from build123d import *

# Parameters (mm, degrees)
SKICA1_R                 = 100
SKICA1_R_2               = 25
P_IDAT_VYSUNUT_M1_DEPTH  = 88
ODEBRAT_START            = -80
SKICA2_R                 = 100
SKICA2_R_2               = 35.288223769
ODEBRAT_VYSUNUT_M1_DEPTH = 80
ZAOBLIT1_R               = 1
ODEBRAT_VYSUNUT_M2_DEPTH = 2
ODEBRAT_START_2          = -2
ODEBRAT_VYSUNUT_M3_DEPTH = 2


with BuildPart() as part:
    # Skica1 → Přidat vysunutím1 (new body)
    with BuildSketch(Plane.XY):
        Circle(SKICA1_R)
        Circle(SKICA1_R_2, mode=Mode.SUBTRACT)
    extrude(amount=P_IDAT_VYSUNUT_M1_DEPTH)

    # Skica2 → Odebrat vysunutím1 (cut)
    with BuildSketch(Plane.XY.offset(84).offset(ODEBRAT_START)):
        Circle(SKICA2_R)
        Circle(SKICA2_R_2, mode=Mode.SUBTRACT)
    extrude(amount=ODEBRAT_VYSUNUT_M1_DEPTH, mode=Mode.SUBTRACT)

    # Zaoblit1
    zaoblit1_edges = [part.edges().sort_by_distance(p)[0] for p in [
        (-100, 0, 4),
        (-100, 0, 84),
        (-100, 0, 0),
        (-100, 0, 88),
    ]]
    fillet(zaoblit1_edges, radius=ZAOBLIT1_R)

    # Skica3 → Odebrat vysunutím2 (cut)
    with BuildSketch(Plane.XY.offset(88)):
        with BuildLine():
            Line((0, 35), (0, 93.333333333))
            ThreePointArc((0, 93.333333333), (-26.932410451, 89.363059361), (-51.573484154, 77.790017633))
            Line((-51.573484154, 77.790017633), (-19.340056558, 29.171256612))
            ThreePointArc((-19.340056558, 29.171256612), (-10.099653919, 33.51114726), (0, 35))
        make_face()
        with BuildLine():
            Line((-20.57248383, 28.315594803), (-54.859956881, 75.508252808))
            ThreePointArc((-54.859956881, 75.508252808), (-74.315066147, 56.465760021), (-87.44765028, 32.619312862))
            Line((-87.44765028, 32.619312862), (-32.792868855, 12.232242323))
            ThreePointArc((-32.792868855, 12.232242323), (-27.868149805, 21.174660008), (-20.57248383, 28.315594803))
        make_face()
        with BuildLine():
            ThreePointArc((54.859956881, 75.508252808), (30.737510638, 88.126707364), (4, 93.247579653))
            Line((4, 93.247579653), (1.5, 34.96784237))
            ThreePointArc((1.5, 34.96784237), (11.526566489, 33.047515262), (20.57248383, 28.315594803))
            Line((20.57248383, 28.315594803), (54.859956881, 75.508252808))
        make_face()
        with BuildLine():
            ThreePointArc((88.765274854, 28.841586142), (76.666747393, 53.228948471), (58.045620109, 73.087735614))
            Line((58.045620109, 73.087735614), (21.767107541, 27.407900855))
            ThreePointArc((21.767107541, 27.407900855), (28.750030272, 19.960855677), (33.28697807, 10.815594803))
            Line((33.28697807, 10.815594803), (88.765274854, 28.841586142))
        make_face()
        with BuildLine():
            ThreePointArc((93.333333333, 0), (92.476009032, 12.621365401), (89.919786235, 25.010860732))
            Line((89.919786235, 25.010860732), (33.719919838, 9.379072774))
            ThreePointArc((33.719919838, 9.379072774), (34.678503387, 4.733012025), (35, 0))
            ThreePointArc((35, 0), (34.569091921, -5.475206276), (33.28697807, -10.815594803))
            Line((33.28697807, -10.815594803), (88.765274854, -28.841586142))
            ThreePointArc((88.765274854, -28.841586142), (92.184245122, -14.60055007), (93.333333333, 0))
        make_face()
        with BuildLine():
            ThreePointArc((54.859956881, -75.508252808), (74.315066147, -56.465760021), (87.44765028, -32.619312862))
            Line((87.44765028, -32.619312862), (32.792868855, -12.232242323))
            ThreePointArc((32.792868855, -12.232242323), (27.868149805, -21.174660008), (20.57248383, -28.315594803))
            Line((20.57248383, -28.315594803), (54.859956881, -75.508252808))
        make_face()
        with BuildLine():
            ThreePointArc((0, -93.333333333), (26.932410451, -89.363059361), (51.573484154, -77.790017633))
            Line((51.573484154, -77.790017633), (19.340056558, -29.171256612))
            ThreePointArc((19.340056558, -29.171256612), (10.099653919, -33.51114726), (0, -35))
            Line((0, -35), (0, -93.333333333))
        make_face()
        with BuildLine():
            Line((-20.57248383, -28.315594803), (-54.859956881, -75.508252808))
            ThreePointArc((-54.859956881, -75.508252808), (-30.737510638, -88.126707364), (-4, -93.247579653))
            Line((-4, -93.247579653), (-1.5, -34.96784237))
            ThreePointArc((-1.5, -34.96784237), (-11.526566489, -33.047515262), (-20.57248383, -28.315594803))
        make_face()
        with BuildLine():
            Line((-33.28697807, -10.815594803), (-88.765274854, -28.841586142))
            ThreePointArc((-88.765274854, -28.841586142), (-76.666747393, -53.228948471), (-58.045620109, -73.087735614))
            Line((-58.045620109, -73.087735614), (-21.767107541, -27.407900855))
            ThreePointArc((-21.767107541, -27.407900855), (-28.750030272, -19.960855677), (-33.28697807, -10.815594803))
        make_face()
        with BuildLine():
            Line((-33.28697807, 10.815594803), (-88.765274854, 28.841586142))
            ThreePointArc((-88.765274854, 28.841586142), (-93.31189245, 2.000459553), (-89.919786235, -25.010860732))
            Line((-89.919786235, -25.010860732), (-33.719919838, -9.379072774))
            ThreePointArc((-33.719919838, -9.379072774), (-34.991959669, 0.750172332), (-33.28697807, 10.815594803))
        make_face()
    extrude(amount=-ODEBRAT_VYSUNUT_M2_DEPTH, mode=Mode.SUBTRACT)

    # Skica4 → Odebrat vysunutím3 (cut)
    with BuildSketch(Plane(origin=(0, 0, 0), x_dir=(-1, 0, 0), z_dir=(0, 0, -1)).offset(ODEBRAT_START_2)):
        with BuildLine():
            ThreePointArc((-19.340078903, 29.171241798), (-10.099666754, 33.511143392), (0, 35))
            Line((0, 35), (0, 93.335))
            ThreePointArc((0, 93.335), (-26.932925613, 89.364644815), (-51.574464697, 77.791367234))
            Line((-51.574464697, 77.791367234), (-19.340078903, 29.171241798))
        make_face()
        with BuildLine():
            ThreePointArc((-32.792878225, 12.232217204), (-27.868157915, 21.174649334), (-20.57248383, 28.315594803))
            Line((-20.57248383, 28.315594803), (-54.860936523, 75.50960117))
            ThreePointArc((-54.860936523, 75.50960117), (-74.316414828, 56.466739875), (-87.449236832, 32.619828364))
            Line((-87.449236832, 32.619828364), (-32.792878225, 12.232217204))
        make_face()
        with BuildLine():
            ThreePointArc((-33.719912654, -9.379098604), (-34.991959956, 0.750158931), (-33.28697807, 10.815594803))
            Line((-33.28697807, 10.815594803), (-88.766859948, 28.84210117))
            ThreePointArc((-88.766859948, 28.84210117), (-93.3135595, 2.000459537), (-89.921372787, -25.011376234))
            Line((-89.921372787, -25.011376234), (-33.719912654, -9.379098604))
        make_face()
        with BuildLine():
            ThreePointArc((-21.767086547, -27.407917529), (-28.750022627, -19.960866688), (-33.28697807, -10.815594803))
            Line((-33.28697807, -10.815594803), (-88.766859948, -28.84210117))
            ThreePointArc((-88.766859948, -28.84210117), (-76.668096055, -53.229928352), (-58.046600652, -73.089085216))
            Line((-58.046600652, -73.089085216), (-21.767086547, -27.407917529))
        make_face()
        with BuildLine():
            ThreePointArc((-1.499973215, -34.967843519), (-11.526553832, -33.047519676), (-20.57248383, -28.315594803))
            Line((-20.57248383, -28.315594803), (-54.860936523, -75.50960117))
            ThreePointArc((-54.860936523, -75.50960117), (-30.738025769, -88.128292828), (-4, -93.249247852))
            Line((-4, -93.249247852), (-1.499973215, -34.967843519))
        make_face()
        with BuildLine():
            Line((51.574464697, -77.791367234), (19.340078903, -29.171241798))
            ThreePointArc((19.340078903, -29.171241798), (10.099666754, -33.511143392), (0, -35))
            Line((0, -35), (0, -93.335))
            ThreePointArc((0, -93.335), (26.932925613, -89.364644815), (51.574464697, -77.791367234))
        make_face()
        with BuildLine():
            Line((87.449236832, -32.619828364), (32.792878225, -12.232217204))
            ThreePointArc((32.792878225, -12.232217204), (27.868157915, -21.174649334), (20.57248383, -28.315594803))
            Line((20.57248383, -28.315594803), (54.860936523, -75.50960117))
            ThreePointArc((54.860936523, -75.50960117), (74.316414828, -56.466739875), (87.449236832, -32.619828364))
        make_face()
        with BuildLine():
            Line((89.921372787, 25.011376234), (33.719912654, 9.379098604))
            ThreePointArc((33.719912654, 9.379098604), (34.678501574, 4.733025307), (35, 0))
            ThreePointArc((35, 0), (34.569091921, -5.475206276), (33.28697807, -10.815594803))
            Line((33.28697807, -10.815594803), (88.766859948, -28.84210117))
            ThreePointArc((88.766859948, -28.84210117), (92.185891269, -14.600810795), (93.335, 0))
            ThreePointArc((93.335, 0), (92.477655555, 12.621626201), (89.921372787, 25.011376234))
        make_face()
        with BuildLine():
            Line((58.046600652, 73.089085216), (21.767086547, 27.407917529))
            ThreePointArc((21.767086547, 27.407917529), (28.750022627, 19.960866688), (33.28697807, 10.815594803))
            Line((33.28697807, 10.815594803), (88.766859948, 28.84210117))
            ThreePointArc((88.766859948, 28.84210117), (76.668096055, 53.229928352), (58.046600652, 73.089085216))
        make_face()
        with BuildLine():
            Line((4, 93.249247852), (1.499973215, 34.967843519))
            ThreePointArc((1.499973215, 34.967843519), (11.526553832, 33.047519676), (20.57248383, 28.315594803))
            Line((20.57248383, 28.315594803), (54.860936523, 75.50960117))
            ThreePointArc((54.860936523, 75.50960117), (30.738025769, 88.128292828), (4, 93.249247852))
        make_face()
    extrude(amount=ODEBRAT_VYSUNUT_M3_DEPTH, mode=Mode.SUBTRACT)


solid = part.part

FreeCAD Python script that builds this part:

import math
import FreeCAD as App
import Part
import Sketcher
from FreeCAD import Vector
Q = App.Units.Quantity


def edges_at(feature, points):
    """Names of the edges that pass closest to the given points."""
    edges = feature.Shape.Edges
    near = lambda p: min(range(len(edges)), key=lambda i: edges[i].distToShape(Part.Vertex(*p))[0])
    return sorted({f"Edge{near(p) + 1}" for p in points})

doc = App.newDocument("Part")
body = doc.addObject("PartDesign::Body", "Body")

sketch1 = body.newObject("Sketcher::SketchObject", "Sketch")
sketch1.AttachmentSupport = (doc.getObject("XY_Plane"), [""])
sketch1.MapMode = "FlatFace"
sketch1.addGeometry(Part.Circle(Vector(0, 0, 0), Vector(0, 0, 1), 100), False)
sketch1.addGeometry(Part.Circle(Vector(0, 0, 0), Vector(0, 0, 1), 25), False)
sketch1.addConstraint(Sketcher.Constraint("Coincident", 0, 3, -1, 1))
sketch1.addConstraint(Sketcher.Constraint("Coincident", 1, 3, -1, 1))
sketch1.addConstraint(Sketcher.Constraint("Diameter", 0, Q("200 mm")))
sketch1.addConstraint(Sketcher.Constraint("Diameter", 1, Q("50 mm")))
pad1 = body.newObject("PartDesign::Pad", "Pad")
pad1.Profile = sketch1
pad1.Length = 88

sketch2 = body.newObject("Sketcher::SketchObject", "Sketch001")
sketch2.AttachmentSupport = (doc.getObject("XY_Plane"), [""])
sketch2.MapMode = "FlatFace"
sketch2.AttachmentOffset = App.Placement(Vector(0, 0, 4), App.Rotation())
sketch2.addGeometry(Part.Circle(Vector(0, 0, 0), Vector(0, 0, 1), 100), False)
sketch2.addGeometry(Part.Circle(Vector(0, 0, 0), Vector(0, 0, 1), 35), False)
sketch2.addConstraint(Sketcher.Constraint("Coincident", 0, 3, -1, 1))
sketch2.addConstraint(Sketcher.Constraint("Coincident", 1, 3, -1, 1))
sketch2.addConstraint(Sketcher.Constraint("Diameter", 0, Q("200 mm")))
sketch2.addConstraint(Sketcher.Constraint("Diameter", 1, Q("70.576448 mm")))
pocket1 = body.newObject("PartDesign::Pocket", "Pocket")
pocket1.Profile = sketch2
pocket1.Length = 80
pocket1.Reversed = True
doc.recompute()

fillet = body.newObject("PartDesign::Fillet", "Fillet")
fillet.Base = (pocket1, edges_at(pocket1, [
    (-100, 0, 4),
    (-100, 0, 84),
    (-100, 0, 0),
    (-100, 0, 88),
]))
fillet.Radius = 1

sketch3 = body.newObject("Sketcher::SketchObject", "Sketch002")
sketch3.AttachmentSupport = (doc.getObject("XY_Plane"), [""])
sketch3.MapMode = "FlatFace"
sketch3.AttachmentOffset = App.Placement(Vector(0, 0, 88), App.Rotation())
sketch3.addGeometry(Part.LineSegment(Vector(0, 35, 0), Vector(0, 93, 0)), False)
sketch3.addGeometry(Part.ArcOfCircle(Part.Circle(Vector(0, 0, 0), Vector(0, 0, 1), 93), math.radians(90), math.radians(124)), False)
sketch3.addGeometry(Part.LineSegment(Vector(-52, 78, 0), Vector(-19, 29, 0)), False)
sketch3.addGeometry(Part.ArcOfCircle(Part.Circle(Vector(0, 0, 0), Vector(0, 0, 1), 35), math.radians(90), math.radians(124)), False)
sketch3.addGeometry(Part.LineSegment(Vector(-21, 28, 0), Vector(-55, 76, 0)), False)
sketch3.addGeometry(Part.ArcOfCircle(Part.Circle(Vector(0, 0, 0), Vector(0, 0, 1), 93), math.radians(126), math.radians(160)), False)
sketch3.addGeometry(Part.LineSegment(Vector(-87, 33, 0), Vector(-33, 12, 0)), False)
sketch3.addGeometry(Part.ArcOfCircle(Part.Circle(Vector(0, 0, 0), Vector(0, 0, 1), 35), math.radians(126), math.radians(160)), False)
sketch3.addGeometry(Part.ArcOfCircle(Part.Circle(Vector(0, 0, 0), Vector(0, 0, 1), 93), math.radians(54), math.radians(88)), False)
sketch3.addGeometry(Part.LineSegment(Vector(4, 93, 0), Vector(2, 35, 0)), False)
sketch3.addGeometry(Part.ArcOfCircle(Part.Circle(Vector(0, 0, 0), Vector(0, 0, 1), 35), math.radians(54), math.radians(88)), False)
sketch3.addGeometry(Part.LineSegment(Vector(21, 28, 0), Vector(55, 76, 0)), False)
sketch3.addGeometry(Part.ArcOfCircle(Part.Circle(Vector(0, 0, 0), Vector(0, 0, 1), 93), math.radians(18), math.radians(52)), False)
sketch3.addGeometry(Part.LineSegment(Vector(58, 73, 0), Vector(22, 27, 0)), False)
sketch3.addGeometry(Part.ArcOfCircle(Part.Circle(Vector(0, 0, 0), Vector(0, 0, 1), 35), math.radians(18), math.radians(52)), False)
sketch3.addGeometry(Part.LineSegment(Vector(33, 11, 0), Vector(89, 29, 0)), False)
sketch3.addGeometry(Part.ArcOfCircle(Part.Circle(Vector(0, 0, 0), Vector(0, 0, 1), 93), math.radians(0), math.radians(15.54)), False)
sketch3.addGeometry(Part.LineSegment(Vector(90, 25, 0), Vector(34, 9, 0)), False)
sketch3.addGeometry(Part.ArcOfCircle(Part.Circle(Vector(0, 0, 0), Vector(0, 0, 1), 35), math.radians(0), math.radians(15.54)), False)
sketch3.addGeometry(Part.ArcOfCircle(Part.Circle(Vector(0, 0, 0), Vector(0, 0, 1), 35), math.radians(-18), math.radians(0)), False)
sketch3.addGeometry(Part.LineSegment(Vector(33, -11, 0), Vector(89, -29, 0)), False)
sketch3.addGeometry(Part.ArcOfCircle(Part.Circle(Vector(0, 0, 0), Vector(0, 0, 1), 93), math.radians(-18), math.radians(0)), False)
sketch3.addGeometry(Part.ArcOfCircle(Part.Circle(Vector(0, 0, 0), Vector(0, 0, 1), 93), math.radians(-54), math.radians(-20)), False)
sketch3.addGeometry(Part.LineSegment(Vector(87, -33, 0), Vector(33, -12, 0)), False)
sketch3.addGeometry(Part.ArcOfCircle(Part.Circle(Vector(0, 0, 0), Vector(0, 0, 1), 35), math.radians(-54), math.radians(-20)), False)
sketch3.addGeometry(Part.LineSegment(Vector(21, -28, 0), Vector(55, -76, 0)), False)
sketch3.addGeometry(Part.ArcOfCircle(Part.Circle(Vector(0, 0, 0), Vector(0, 0, 1), 93), math.radians(-90), math.radians(-56)), False)
sketch3.addGeometry(Part.LineSegment(Vector(52, -78, 0), Vector(19, -29, 0)), False)
sketch3.addGeometry(Part.ArcOfCircle(Part.Circle(Vector(0, 0, 0), Vector(0, 0, 1), 35), math.radians(-90), math.radians(-56)), False)
sketch3.addGeometry(Part.LineSegment(Vector(0, -35, 0), Vector(0, -93, 0)), False)
sketch3.addGeometry(Part.LineSegment(Vector(-21, -28, 0), Vector(-55, -76, 0)), False)
sketch3.addGeometry(Part.ArcOfCircle(Part.Circle(Vector(0, 0, 0), Vector(0, 0, 1), 93), math.radians(-126), math.radians(-92)), False)
sketch3.addGeometry(Part.LineSegment(Vector(-4, -93, 0), Vector(-2, -35, 0)), False)
sketch3.addGeometry(Part.ArcOfCircle(Part.Circle(Vector(0, 0, 0), Vector(0, 0, 1), 35), math.radians(-126), math.radians(-92)), False)
sketch3.addGeometry(Part.LineSegment(Vector(-33, -11, 0), Vector(-89, -29, 0)), False)
sketch3.addGeometry(Part.ArcOfCircle(Part.Circle(Vector(0, 0, 0), Vector(0, 0, 1), 93), math.radians(-162), math.radians(-128)), False)
sketch3.addGeometry(Part.LineSegment(Vector(-58, -73, 0), Vector(-22, -27, 0)), False)
sketch3.addGeometry(Part.ArcOfCircle(Part.Circle(Vector(0, 0, 0), Vector(0, 0, 1), 35), math.radians(-162), math.radians(-128)), False)
sketch3.addGeometry(Part.LineSegment(Vector(-33, 11, 0), Vector(-89, 29, 0)), False)
sketch3.addGeometry(Part.ArcOfCircle(Part.Circle(Vector(0, 0, 0), Vector(0, 0, 1), 93), math.radians(162), math.radians(196)), False)
sketch3.addGeometry(Part.LineSegment(Vector(-90, -25, 0), Vector(-34, -9, 0)), False)
sketch3.addGeometry(Part.ArcOfCircle(Part.Circle(Vector(0, 0, 0), Vector(0, 0, 1), 35), math.radians(162), math.radians(196)), False)
sketch3.addConstraint(Sketcher.Constraint("Coincident", 0, 2, 1, 1))
sketch3.addConstraint(Sketcher.Constraint("Coincident", 1, 2, 2, 1))
sketch3.addConstraint(Sketcher.Constraint("Coincident", 2, 2, 3, 2))
sketch3.addConstraint(Sketcher.Constraint("Coincident", 3, 1, 0, 1))
sketch3.addConstraint(Sketcher.Constraint("Coincident", 4, 2, 5, 1))
sketch3.addConstraint(Sketcher.Constraint("Coincident", 5, 2, 6, 1))
sketch3.addConstraint(Sketcher.Constraint("Coincident", 6, 2, 7, 2))
sketch3.addConstraint(Sketcher.Constraint("Coincident", 7, 1, 4, 1))
sketch3.addConstraint(Sketcher.Constraint("Coincident", 8, 2, 9, 1))
sketch3.addConstraint(Sketcher.Constraint("Coincident", 9, 2, 10, 2))
sketch3.addConstraint(Sketcher.Constraint("Coincident", 10, 1, 11, 1))
sketch3.addConstraint(Sketcher.Constraint("Coincident", 11, 2, 8, 1))
sketch3.addConstraint(Sketcher.Constraint("Coincident", 12, 2, 13, 1))
sketch3.addConstraint(Sketcher.Constraint("Coincident", 13, 2, 14, 2))
sketch3.addConstraint(Sketcher.Constraint("Coincident", 14, 1, 15, 1))
sketch3.addConstraint(Sketcher.Constraint("Coincident", 15, 2, 12, 1))
sketch3.addConstraint(Sketcher.Constraint("Coincident", 16, 2, 17, 1))
sketch3.addConstraint(Sketcher.Constraint("Coincident", 17, 2, 18, 2))
sketch3.addConstraint(Sketcher.Constraint("Tangent", 18, 1, 19, 2))
sketch3.addConstraint(Sketcher.Constraint("Coincident", 19, 1, 20, 1))
sketch3.addConstraint(Sketcher.Constraint("Coincident", 20, 2, 21, 1))
sketch3.addConstraint(Sketcher.Constraint("Tangent", 21, 2, 16, 1))
sketch3.addConstraint(Sketcher.Constraint("Coincident", 22, 2, 23, 1))
sketch3.addConstraint(Sketcher.Constraint("Coincident", 23, 2, 24, 2))
sketch3.addConstraint(Sketcher.Constraint("Coincident", 24, 1, 25, 1))
sketch3.addConstraint(Sketcher.Constraint("Coincident", 25, 2, 22, 1))
sketch3.addConstraint(Sketcher.Constraint("Coincident", 26, 2, 27, 1))
sketch3.addConstraint(Sketcher.Constraint("Coincident", 27, 2, 28, 2))
sketch3.addConstraint(Sketcher.Constraint("Coincident", 28, 1, 29, 1))
sketch3.addConstraint(Sketcher.Constraint("Coincident", 29, 2, 26, 1))
sketch3.addConstraint(Sketcher.Constraint("Coincident", 30, 2, 31, 1))
sketch3.addConstraint(Sketcher.Constraint("Coincident", 31, 2, 32, 1))
sketch3.addConstraint(Sketcher.Constraint("Coincident", 32, 2, 33, 2))
sketch3.addConstraint(Sketcher.Constraint("Coincident", 33, 1, 30, 1))
sketch3.addConstraint(Sketcher.Constraint("Coincident", 34, 2, 35, 1))
sketch3.addConstraint(Sketcher.Constraint("Coincident", 35, 2, 36, 1))
sketch3.addConstraint(Sketcher.Constraint("Coincident", 36, 2, 37, 2))
sketch3.addConstraint(Sketcher.Constraint("Coincident", 37, 1, 34, 1))
sketch3.addConstraint(Sketcher.Constraint("Coincident", 38, 2, 39, 1))
sketch3.addConstraint(Sketcher.Constraint("Coincident", 39, 2, 40, 1))
sketch3.addConstraint(Sketcher.Constraint("Coincident", 40, 2, 41, 2))
sketch3.addConstraint(Sketcher.Constraint("Coincident", 41, 1, 38, 1))
sketch3.addConstraint(Sketcher.Constraint("Vertical", 0))
sketch3.addConstraint(Sketcher.Constraint("Vertical", 29))
sketch3.addConstraint(Sketcher.Constraint("Coincident", 1, 3, -1, 1))
sketch3.addConstraint(Sketcher.Constraint("Coincident", 3, 3, -1, 1))
sketch3.addConstraint(Sketcher.Constraint("Coincident", 5, 3, -1, 1))
sketch3.addConstraint(Sketcher.Constraint("Coincident", 7, 3, -1, 1))
sketch3.addConstraint(Sketcher.Constraint("Coincident", 8, 3, -1, 1))
sketch3.addConstraint(Sketcher.Constraint("Coincident", 10, 3, -1, 1))
sketch3.addConstraint(Sketcher.Constraint("Coincident", 12, 3, -1, 1))
sketch3.addConstraint(Sketcher.Constraint("Coincident", 14, 3, -1, 1))
sketch3.addConstraint(Sketcher.Constraint("Coincident", 16, 3, -1, 1))
sketch3.addConstraint(Sketcher.Constraint("Coincident", 18, 3, -1, 1))
sketch3.addConstraint(Sketcher.Constraint("Coincident", 22, 3, -1, 1))
sketch3.addConstraint(Sketcher.Constraint("Coincident", 24, 3, -1, 1))
sketch3.addConstraint(Sketcher.Constraint("Coincident", 26, 3, -1, 1))
sketch3.addConstraint(Sketcher.Constraint("Coincident", 28, 3, -1, 1))
sketch3.addConstraint(Sketcher.Constraint("Coincident", 31, 3, -1, 1))
sketch3.addConstraint(Sketcher.Constraint("Coincident", 33, 3, -1, 1))
sketch3.addConstraint(Sketcher.Constraint("Coincident", 35, 3, -1, 1))
sketch3.addConstraint(Sketcher.Constraint("Coincident", 37, 3, -1, 1))
sketch3.addConstraint(Sketcher.Constraint("Coincident", 39, 3, -1, 1))
sketch3.addConstraint(Sketcher.Constraint("Coincident", 41, 3, -1, 1))
sketch3.addConstraint(Sketcher.Constraint("Equal", 1, 5))
sketch3.addConstraint(Sketcher.Constraint("Equal", 3, 7))
sketch3.addConstraint(Sketcher.Constraint("Equal", 5, 8))
sketch3.addConstraint(Sketcher.Constraint("Equal", 7, 10))
sketch3.addConstraint(Sketcher.Constraint("Equal", 8, 12))
sketch3.addConstraint(Sketcher.Constraint("Equal", 10, 14))
sketch3.addConstraint(Sketcher.Constraint("Equal", 12, 16))
sketch3.addConstraint(Sketcher.Constraint("Equal", 14, 18))
sketch3.addConstraint(Sketcher.Constraint("Equal", 18, 19))
sketch3.addConstraint(Sketcher.Constraint("Equal", 16, 21))
sketch3.addConstraint(Sketcher.Constraint("Equal", 21, 22))
sketch3.addConstraint(Sketcher.Constraint("Equal", 19, 24))
sketch3.addConstraint(Sketcher.Constraint("Equal", 22, 26))
sketch3.addConstraint(Sketcher.Constraint("Equal", 24, 28))
sketch3.addConstraint(Sketcher.Constraint("Equal", 26, 31))
sketch3.addConstraint(Sketcher.Constraint("Equal", 28, 33))
sketch3.addConstraint(Sketcher.Constraint("Equal", 31, 35))
sketch3.addConstraint(Sketcher.Constraint("Equal", 33, 37))
sketch3.addConstraint(Sketcher.Constraint("Equal", 35, 39))
sketch3.addConstraint(Sketcher.Constraint("Equal", 37, 41))
sketch3.addConstraint(Sketcher.Constraint("PointOnObject", 0, 2, -2))
sketch3.addConstraint(Sketcher.Constraint("PointOnObject", 18, 1, -1))
sketch3.addConstraint(Sketcher.Constraint("PointOnObject", 21, 2, -1))
sketch3.addConstraint(Sketcher.Constraint("PointOnObject", 28, 1, -2))
sketch3.addConstraint(Sketcher.Constraint("Parallel", 6, 23))
sketch3.addConstraint(Sketcher.Constraint("Parallel", 4, 25))
sketch3.addConstraint(Sketcher.Constraint("Parallel", 2, 27))
sketch3.addConstraint(Sketcher.Constraint("Parallel", 11, 30))
sketch3.addConstraint(Sketcher.Constraint("Parallel", 9, 32))
sketch3.addConstraint(Sketcher.Constraint("Parallel", 15, 34))
sketch3.addConstraint(Sketcher.Constraint("Parallel", 13, 36))
sketch3.addConstraint(Sketcher.Constraint("Parallel", 20, 38))
sketch3.addConstraint(Sketcher.Constraint("Parallel", 17, 40))
sketch3.addConstraint(Sketcher.Constraint("Horizontal", 7, 1, 10, 1))
sketch3.addConstraint(Sketcher.Constraint("Horizontal", 4, 2, 11, 2))
sketch3.addConstraint(Sketcher.Constraint("Horizontal", 25, 2, 30, 2))
sketch3.addConstraint(Sketcher.Constraint("Horizontal", 20, 2, 34, 2))
sketch3.addConstraint(Sketcher.Constraint("Horizontal", 19, 1, 37, 1))
sketch3.addConstraint(Sketcher.Constraint("Horizontal", 15, 2, 38, 2))
sketch3.addConstraint(Sketcher.Constraint("Vertical", 14, 1, 19, 1))
sketch3.addConstraint(Sketcher.Constraint("Vertical", 10, 1, 24, 1))
sketch3.addConstraint(Sketcher.Constraint("Radius", 3, Q("35 mm")))
sketch3.addConstraint(Sketcher.Constraint("Angle", 4, Q("126 deg")))
sketch3.addConstraint(Sketcher.Constraint("Angle", 15, Q("18 deg")))
sketch3.addConstraint(Sketcher.Constraint("DistanceX", -1, 1, 8, 2, Q("4 mm")))
sketch3.addConstraint(Sketcher.Constraint("DistanceX", 31, 2, -1, 1, Q("4 mm")))
sketch3.addConstraint(Sketcher.Constraint("DistanceX", -1, 1, 9, 2, Q("1.5 mm")))
sketch3.addConstraint(Sketcher.Constraint("Radius", 1, Q("93.333333 mm")))
sketch3.addConstraint(Sketcher.Constraint("DistanceY", -1, 1, 13, 2, Q("27.407901 mm")))
sketch3.addConstraint(Sketcher.Constraint("DistanceY", 36, 2, -1, 1, Q("27.407901 mm")))
sketch3.addConstraint(Sketcher.Constraint("DistanceX", 5, 2, -1, 1, Q("87.44765 mm")))
sketch3.addConstraint(Sketcher.Constraint("DistanceX", 6, 2, -1, 1, Q("32.792869 mm")))
sketch3.addConstraint(Sketcher.Constraint("DistanceX", -1, 1, 12, 2, Q("58.04562 mm")))
sketch3.addConstraint(Sketcher.Constraint("DistanceX", -1, 1, 14, 1, Q("33.286978 mm")))
sketch3.addConstraint(Sketcher.Constraint("DistanceY", -1, 1, 16, 2, Q("25.010861 mm")))
sketch3.addConstraint(Sketcher.Constraint("DistanceX", -1, 1, 17, 2, Q("33.71992 mm")))
sketch3.addConstraint(Sketcher.Constraint("DistanceX", -1, 1, 22, 2, Q("87.44765 mm")))
sketch3.addConstraint(Sketcher.Constraint("DistanceY", 39, 2, -1, 1, Q("25.010861 mm")))
sketch3.addConstraint(Sketcher.Constraint("DistanceX", 1, 2, -1, 1, Q("51.573484 mm")))
sketch3.addConstraint(Sketcher.Constraint("DistanceX", 2, 2, -1, 1, Q("19.340057 mm")))
sketch3.addConstraint(Sketcher.Constraint("DistanceX", 4, 2, -1, 1, Q("54.859957 mm")))
sketch3.addConstraint(Sketcher.Constraint("DistanceX", -1, 1, 26, 2, Q("51.573484 mm")))
pocket2 = body.newObject("PartDesign::Pocket", "Pocket001")
pocket2.Profile = sketch3
pocket2.Length = 2

sketch4 = body.newObject("Sketcher::SketchObject", "Sketch003")
sketch4.AttachmentSupport = (doc.getObject("XY_Plane"), [""])
sketch4.MapMode = "FlatFace"
sketch4.AttachmentOffset = App.Placement(Vector(0, 0, 2), App.Rotation())
sketch4.addGeometry(Part.ArcOfCircle(Part.Circle(Vector(0, 0, 0), Vector(0, 0, 1), 35), math.radians(56), math.radians(90)), False)
sketch4.addGeometry(Part.LineSegment(Vector(0, 35, 0), Vector(0, 93, 0)), False)
sketch4.addGeometry(Part.ArcOfCircle(Part.Circle(Vector(0, 0, 0), Vector(0, 0, 1), 93), math.radians(56), math.radians(90)), False)
sketch4.addGeometry(Part.LineSegment(Vector(52, 78, 0), Vector(19, 29, 0)), False)
sketch4.addGeometry(Part.ArcOfCircle(Part.Circle(Vector(0, 0, 0), Vector(0, 0, 1), 35), math.radians(20), math.radians(54)), False)
sketch4.addGeometry(Part.LineSegment(Vector(21, 28, 0), Vector(55, 76, 0)), False)
sketch4.addGeometry(Part.ArcOfCircle(Part.Circle(Vector(0, 0, 0), Vector(0, 0, 1), 93), math.radians(20), math.radians(54)), False)
sketch4.addGeometry(Part.LineSegment(Vector(87, 33, 0), Vector(33, 12, 0)), False)
sketch4.addGeometry(Part.ArcOfCircle(Part.Circle(Vector(0, 0, 0), Vector(0, 0, 1), 35), math.radians(-16), math.radians(18)), False)
sketch4.addGeometry(Part.LineSegment(Vector(33, 11, 0), Vector(89, 29, 0)), False)
sketch4.addGeometry(Part.ArcOfCircle(Part.Circle(Vector(0, 0, 0), Vector(0, 0, 1), 93), math.radians(-16), math.radians(18)), False)
sketch4.addGeometry(Part.LineSegment(Vector(90, -25, 0), Vector(34, -9, 0)), False)
sketch4.addGeometry(Part.ArcOfCircle(Part.Circle(Vector(0, 0, 0), Vector(0, 0, 1), 35), math.radians(-52), math.radians(-18)), False)
sketch4.addGeometry(Part.LineSegment(Vector(33, -11, 0), Vector(89, -29, 0)), False)
sketch4.addGeometry(Part.ArcOfCircle(Part.Circle(Vector(0, 0, 0), Vector(0, 0, 1), 93), math.radians(-52), math.radians(-18)), False)
sketch4.addGeometry(Part.LineSegment(Vector(58, -73, 0), Vector(22, -27, 0)), False)
sketch4.addGeometry(Part.ArcOfCircle(Part.Circle(Vector(0, 0, 0), Vector(0, 0, 1), 35), math.radians(-88), math.radians(-54)), False)
sketch4.addGeometry(Part.LineSegment(Vector(21, -28, 0), Vector(55, -76, 0)), False)
sketch4.addGeometry(Part.ArcOfCircle(Part.Circle(Vector(0, 0, 0), Vector(0, 0, 1), 93), math.radians(-88), math.radians(-54)), False)
sketch4.addGeometry(Part.LineSegment(Vector(4, -93, 0), Vector(1, -35, 0)), False)
sketch4.addGeometry(Part.LineSegment(Vector(-52, -78, 0), Vector(-19, -29, 0)), False)
sketch4.addGeometry(Part.ArcOfCircle(Part.Circle(Vector(0, 0, 0), Vector(0, 0, 1), 35), math.radians(-124), math.radians(-90)), False)
sketch4.addGeometry(Part.LineSegment(Vector(0, -35, 0), Vector(0, -93, 0)), False)
sketch4.addGeometry(Part.ArcOfCircle(Part.Circle(Vector(0, 0, 0), Vector(0, 0, 1), 93), math.radians(-124), math.radians(-90)), False)
sketch4.addGeometry(Part.LineSegment(Vector(-87, -33, 0), Vector(-33, -12, 0)), False)
sketch4.addGeometry(Part.ArcOfCircle(Part.Circle(Vector(0, 0, 0), Vector(0, 0, 1), 35), math.radians(-160), math.radians(-126)), False)
sketch4.addGeometry(Part.LineSegment(Vector(-21, -28, 0), Vector(-55, -76, 0)), False)
sketch4.addGeometry(Part.ArcOfCircle(Part.Circle(Vector(0, 0, 0), Vector(0, 0, 1), 93), math.radians(-160), math.radians(-126)), False)
sketch4.addGeometry(Part.LineSegment(Vector(-90, 25, 0), Vector(-34, 9, 0)), False)
sketch4.addGeometry(Part.ArcOfCircle(Part.Circle(Vector(0, 0, 0), Vector(0, 0, 1), 35), math.radians(164.46), math.radians(180)), False)
sketch4.addGeometry(Part.ArcOfCircle(Part.Circle(Vector(0, 0, 0), Vector(0, 0, 1), 35), math.radians(180), math.radians(198)), False)
sketch4.addGeometry(Part.LineSegment(Vector(-33, -11, 0), Vector(-89, -29, 0)), False)
sketch4.addGeometry(Part.ArcOfCircle(Part.Circle(Vector(0, 0, 0), Vector(0, 0, 1), 93), math.radians(-180), math.radians(-162)), False)
sketch4.addGeometry(Part.ArcOfCircle(Part.Circle(Vector(0, 0, 0), Vector(0, 0, 1), 93), math.radians(164.46), math.radians(180)), False)
sketch4.addGeometry(Part.LineSegment(Vector(-58, 73, 0), Vector(-22, 27, 0)), False)
sketch4.addGeometry(Part.ArcOfCircle(Part.Circle(Vector(0, 0, 0), Vector(0, 0, 1), 35), math.radians(128), math.radians(162)), False)
sketch4.addGeometry(Part.LineSegment(Vector(-33, 11, 0), Vector(-89, 29, 0)), False)
sketch4.addGeometry(Part.ArcOfCircle(Part.Circle(Vector(0, 0, 0), Vector(0, 0, 1), 93), math.radians(128), math.radians(162)), False)
sketch4.addGeometry(Part.LineSegment(Vector(-4, 93, 0), Vector(-1, 35, 0)), False)
sketch4.addGeometry(Part.ArcOfCircle(Part.Circle(Vector(0, 0, 0), Vector(0, 0, 1), 35), math.radians(92), math.radians(126)), False)
sketch4.addGeometry(Part.LineSegment(Vector(-21, 28, 0), Vector(-55, 76, 0)), False)
sketch4.addGeometry(Part.ArcOfCircle(Part.Circle(Vector(0, 0, 0), Vector(0, 0, 1), 93), math.radians(92), math.radians(126)), False)
sketch4.addConstraint(Sketcher.Constraint("Coincident", 0, 2, 1, 1))
sketch4.addConstraint(Sketcher.Constraint("Coincident", 1, 2, 2, 2))
sketch4.addConstraint(Sketcher.Constraint("Coincident", 2, 1, 3, 1))
sketch4.addConstraint(Sketcher.Constraint("Coincident", 3, 2, 0, 1))
sketch4.addConstraint(Sketcher.Constraint("Coincident", 4, 2, 5, 1))
sketch4.addConstraint(Sketcher.Constraint("Coincident", 5, 2, 6, 2))
sketch4.addConstraint(Sketcher.Constraint("Coincident", 6, 1, 7, 1))
sketch4.addConstraint(Sketcher.Constraint("Coincident", 7, 2, 4, 1))
sketch4.addConstraint(Sketcher.Constraint("Coincident", 8, 2, 9, 1))
sketch4.addConstraint(Sketcher.Constraint("Coincident", 9, 2, 10, 2))
sketch4.addConstraint(Sketcher.Constraint("Coincident", 10, 1, 11, 1))
sketch4.addConstraint(Sketcher.Constraint("Coincident", 11, 2, 8, 1))
sketch4.addConstraint(Sketcher.Constraint("Coincident", 12, 2, 13, 1))
sketch4.addConstraint(Sketcher.Constraint("Coincident", 13, 2, 14, 2))
sketch4.addConstraint(Sketcher.Constraint("Coincident", 14, 1, 15, 1))
sketch4.addConstraint(Sketcher.Constraint("Coincident", 15, 2, 12, 1))
sketch4.addConstraint(Sketcher.Constraint("Coincident", 16, 2, 17, 1))
sketch4.addConstraint(Sketcher.Constraint("Coincident", 17, 2, 18, 2))
sketch4.addConstraint(Sketcher.Constraint("Coincident", 18, 1, 19, 1))
sketch4.addConstraint(Sketcher.Constraint("Coincident", 19, 2, 16, 1))
sketch4.addConstraint(Sketcher.Constraint("Coincident", 20, 2, 21, 1))
sketch4.addConstraint(Sketcher.Constraint("Coincident", 21, 2, 22, 1))
sketch4.addConstraint(Sketcher.Constraint("Coincident", 22, 2, 23, 2))
sketch4.addConstraint(Sketcher.Constraint("Coincident", 23, 1, 20, 1))
sketch4.addConstraint(Sketcher.Constraint("Coincident", 24, 2, 25, 1))
sketch4.addConstraint(Sketcher.Constraint("Coincident", 25, 2, 26, 1))
sketch4.addConstraint(Sketcher.Constraint("Coincident", 26, 2, 27, 2))
sketch4.addConstraint(Sketcher.Constraint("Coincident", 27, 1, 24, 1))
sketch4.addConstraint(Sketcher.Constraint("Coincident", 28, 2, 29, 1))
sketch4.addConstraint(Sketcher.Constraint("Tangent", 29, 2, 30, 1))
sketch4.addConstraint(Sketcher.Constraint("Coincident", 30, 2, 31, 1))
sketch4.addConstraint(Sketcher.Constraint("Coincident", 31, 2, 32, 2))
sketch4.addConstraint(Sketcher.Constraint("Tangent", 32, 1, 33, 2))
sketch4.addConstraint(Sketcher.Constraint("Coincident", 33, 1, 28, 1))
sketch4.addConstraint(Sketcher.Constraint("Coincident", 34, 2, 35, 1))
sketch4.addConstraint(Sketcher.Constraint("Coincident", 35, 2, 36, 1))
sketch4.addConstraint(Sketcher.Constraint("Coincident", 36, 2, 37, 2))
sketch4.addConstraint(Sketcher.Constraint("Coincident", 37, 1, 34, 1))
sketch4.addConstraint(Sketcher.Constraint("Coincident", 38, 2, 39, 1))
sketch4.addConstraint(Sketcher.Constraint("Coincident", 39, 2, 40, 1))
sketch4.addConstraint(Sketcher.Constraint("Coincident", 40, 2, 41, 2))
sketch4.addConstraint(Sketcher.Constraint("Coincident", 41, 1, 38, 1))
sketch4.addConstraint(Sketcher.Constraint("Vertical", 1))
sketch4.addConstraint(Sketcher.Constraint("Vertical", 22))
sketch4.addConstraint(Sketcher.Constraint("Coincident", 0, 3, -1, 1))
sketch4.addConstraint(Sketcher.Constraint("Coincident", 2, 3, -1, 1))
sketch4.addConstraint(Sketcher.Constraint("Coincident", 4, 3, -1, 1))
sketch4.addConstraint(Sketcher.Constraint("Coincident", 6, 3, -1, 1))
sketch4.addConstraint(Sketcher.Constraint("Coincident", 8, 3, -1, 1))
sketch4.addConstraint(Sketcher.Constraint("Coincident", 10, 3, -1, 1))
sketch4.addConstraint(Sketcher.Constraint("Coincident", 12, 3, -1, 1))
sketch4.addConstraint(Sketcher.Constraint("Coincident", 14, 3, -1, 1))
sketch4.addConstraint(Sketcher.Constraint("Coincident", 16, 3, -1, 1))
sketch4.addConstraint(Sketcher.Constraint("Coincident", 18, 3, -1, 1))
sketch4.addConstraint(Sketcher.Constraint("Coincident", 21, 3, -1, 1))
sketch4.addConstraint(Sketcher.Constraint("Coincident", 23, 3, -1, 1))
sketch4.addConstraint(Sketcher.Constraint("Coincident", 25, 3, -1, 1))
sketch4.addConstraint(Sketcher.Constraint("Coincident", 27, 3, -1, 1))
sketch4.addConstraint(Sketcher.Constraint("Coincident", 29, 3, -1, 1))
sketch4.addConstraint(Sketcher.Constraint("Coincident", 32, 3, -1, 1))
sketch4.addConstraint(Sketcher.Constraint("Coincident", 35, 3, -1, 1))
sketch4.addConstraint(Sketcher.Constraint("Coincident", 37, 3, -1, 1))
sketch4.addConstraint(Sketcher.Constraint("Coincident", 39, 3, -1, 1))
sketch4.addConstraint(Sketcher.Constraint("Coincident", 41, 3, -1, 1))
sketch4.addConstraint(Sketcher.Constraint("Equal", 0, 4))
sketch4.addConstraint(Sketcher.Constraint("Equal", 2, 6))
sketch4.addConstraint(Sketcher.Constraint("Equal", 4, 8))
sketch4.addConstraint(Sketcher.Constraint("Equal", 6, 10))
sketch4.addConstraint(Sketcher.Constraint("Equal", 8, 12))
sketch4.addConstraint(Sketcher.Constraint("Equal", 10, 14))
sketch4.addConstraint(Sketcher.Constraint("Equal", 12, 16))
sketch4.addConstraint(Sketcher.Constraint("Equal", 14, 18))
sketch4.addConstraint(Sketcher.Constraint("Equal", 16, 21))
sketch4.addConstraint(Sketcher.Constraint("Equal", 18, 23))
sketch4.addConstraint(Sketcher.Constraint("Equal", 21, 25))
sketch4.addConstraint(Sketcher.Constraint("Equal", 23, 27))
sketch4.addConstraint(Sketcher.Constraint("Equal", 25, 29))
sketch4.addConstraint(Sketcher.Constraint("Equal", 29, 30))
sketch4.addConstraint(Sketcher.Constraint("Equal", 27, 32))
sketch4.addConstraint(Sketcher.Constraint("Equal", 32, 33))
sketch4.addConstraint(Sketcher.Constraint("Equal", 30, 35))
sketch4.addConstraint(Sketcher.Constraint("Equal", 33, 37))
sketch4.addConstraint(Sketcher.Constraint("Equal", 35, 39))
sketch4.addConstraint(Sketcher.Constraint("Equal", 37, 41))
sketch4.addConstraint(Sketcher.Constraint("PointOnObject", 0, 2, -2))
sketch4.addConstraint(Sketcher.Constraint("PointOnObject", 21, 2, -2))
sketch4.addConstraint(Sketcher.Constraint("PointOnObject", 29, 2, -1))
sketch4.addConstraint(Sketcher.Constraint("PointOnObject", 32, 1, -1))
sketch4.addConstraint(Sketcher.Constraint("Parallel", 3, 20))
sketch4.addConstraint(Sketcher.Constraint("Parallel", 7, 24))
sketch4.addConstraint(Sketcher.Constraint("Parallel", 5, 26))
sketch4.addConstraint(Sketcher.Constraint("Parallel", 11, 28))
sketch4.addConstraint(Sketcher.Constraint("Parallel", 9, 31))
sketch4.addConstraint(Sketcher.Constraint("Parallel", 15, 34))
sketch4.addConstraint(Sketcher.Constraint("Parallel", 13, 36))
sketch4.addConstraint(Sketcher.Constraint("Parallel", 19, 38))
sketch4.addConstraint(Sketcher.Constraint("Parallel", 17, 40))
sketch4.addConstraint(Sketcher.Constraint("Horizontal", 16, 2, 25, 2))
sketch4.addConstraint(Sketcher.Constraint("Horizontal", 17, 2, 26, 2))
sketch4.addConstraint(Sketcher.Constraint("Horizontal", 12, 2, 30, 2))
sketch4.addConstraint(Sketcher.Constraint("Horizontal", 13, 2, 31, 2))
sketch4.addConstraint(Sketcher.Constraint("Horizontal", 8, 2, 35, 2))
sketch4.addConstraint(Sketcher.Constraint("Horizontal", 4, 2, 39, 2))
sketch4.addConstraint(Sketcher.Constraint("Vertical", 8, 2, 12, 2))
sketch4.addConstraint(Sketcher.Constraint("Vertical", 4, 2, 16, 2))
sketch4.addConstraint(Sketcher.Constraint("Radius", 0, Q("35 mm")))
sketch4.addConstraint(Sketcher.Constraint("Angle", 5, Q("54 deg")))
sketch4.addConstraint(Sketcher.Constraint("Angle", 9, Q("18 deg")))
sketch4.addConstraint(Sketcher.Constraint("DistanceX", -1, 1, 18, 1, Q("4 mm")))
sketch4.addConstraint(Sketcher.Constraint("DistanceX", 41, 1, -1, 1, Q("4 mm")))
sketch4.addConstraint(Sketcher.Constraint("Radius", 2, Q("93.335 mm")))
sketch4.addConstraint(Sketcher.Constraint("DistanceY", -1, 1, 5, 2, Q("75.509601 mm")))
sketch4.addConstraint(Sketcher.Constraint("DistanceY", -1, 1, 9, 2, Q("28.842101 mm")))
sketch4.addConstraint(Sketcher.Constraint("DistanceY", 11, 2, -1, 1, Q("9.379099 mm")))
sketch4.addConstraint(Sketcher.Constraint("DistanceX", -1, 1, 14, 1, Q("58.046601 mm")))
sketch4.addConstraint(Sketcher.Constraint("DistanceY", -1, 1, 28, 2, Q("9.379099 mm")))
sketch4.addConstraint(Sketcher.Constraint("DistanceX", 37, 1, -1, 1, Q("58.046601 mm")))
sketch4.addConstraint(Sketcher.Constraint("DistanceX", -1, 1, 3, 2, Q("19.340079 mm")))
sketch4.addConstraint(Sketcher.Constraint("DistanceY", -1, 1, 6, 1, Q("32.619828 mm")))
sketch4.addConstraint(Sketcher.Constraint("DistanceX", -1, 1, 7, 2, Q("32.792878 mm")))
sketch4.addConstraint(Sketcher.Constraint("DistanceX", 20, 2, -1, 1, Q("19.340079 mm")))
sketch4.addConstraint(Sketcher.Constraint("DistanceX", 24, 2, -1, 1, Q("32.792878 mm")))
sketch4.addConstraint(Sketcher.Constraint("DistanceX", -1, 1, 2, 1, Q("51.574465 mm")))
sketch4.addConstraint(Sketcher.Constraint("DistanceX", -1, 1, 10, 1, Q("89.921373 mm")))
sketch4.addConstraint(Sketcher.Constraint("DistanceX", -1, 1, 15, 2, Q("21.767087 mm")))
sketch4.addConstraint(Sketcher.Constraint("DistanceX", -1, 1, 19, 2, Q("1.499973 mm")))
pocket3 = body.newObject("PartDesign::Pocket", "Pocket002")
pocket3.Profile = sketch4
pocket3.Length = 2

doc.recompute()
